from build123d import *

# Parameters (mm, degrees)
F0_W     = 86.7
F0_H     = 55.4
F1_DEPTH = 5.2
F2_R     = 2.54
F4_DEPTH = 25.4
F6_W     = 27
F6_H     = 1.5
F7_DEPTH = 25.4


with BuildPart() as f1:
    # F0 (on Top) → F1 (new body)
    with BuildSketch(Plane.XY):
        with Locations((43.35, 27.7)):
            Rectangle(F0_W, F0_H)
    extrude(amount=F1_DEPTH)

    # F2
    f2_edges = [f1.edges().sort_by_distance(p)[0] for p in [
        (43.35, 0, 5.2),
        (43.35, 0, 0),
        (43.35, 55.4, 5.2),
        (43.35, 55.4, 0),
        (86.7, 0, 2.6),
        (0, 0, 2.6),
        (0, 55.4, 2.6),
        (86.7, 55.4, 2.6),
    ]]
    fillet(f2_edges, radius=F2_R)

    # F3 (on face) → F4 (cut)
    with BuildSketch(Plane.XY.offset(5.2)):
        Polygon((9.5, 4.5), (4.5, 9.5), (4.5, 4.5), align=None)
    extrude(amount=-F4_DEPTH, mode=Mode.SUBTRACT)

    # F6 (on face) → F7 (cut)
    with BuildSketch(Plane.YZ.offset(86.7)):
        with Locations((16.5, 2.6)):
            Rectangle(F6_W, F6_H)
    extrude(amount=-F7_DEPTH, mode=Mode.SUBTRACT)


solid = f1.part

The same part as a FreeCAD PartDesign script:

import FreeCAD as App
import Part
import Sketcher
from FreeCAD import Vector


def edges_at(feature, points):
    """Names of the edges that pass closest to the given points."""
    edges = feature.Shape.Edges
    near = lambda p: min(range(len(edges)), key=lambda i: edges[i].distToShape(Part.Vertex(*p))[0])
    return sorted({f"Edge{near(p) + 1}" for p in points})


def add_polygon(sketch, points):
    """Adds a closed chain of lines whose ends are joined by coincident constraints."""
    first, n = sketch.GeometryCount, len(points)
    for a, b in zip(points, points[1:] + points[:1]):
        sketch.addGeometry(Part.LineSegment(App.Vector(*a, 0), App.Vector(*b, 0)), False)
    for i in range(n):
        sketch.addConstraint(Sketcher.Constraint("Coincident", first + i, 2, first + (i + 1) % n, 1))

doc = App.newDocument("Part")
params = doc.addObject("Spreadsheet::Sheet", "Params")
for row, (alias, value) in enumerate([
    ("sketch1_width", "86.7 mm"),
    ("sketch1_height", "55.4 mm"),
    ("pad1_length", "5.2 mm"),
    ("fillet_radius", "2.54 mm"),
    ("sketch2_width", "5 mm"),
    ("pocket1_length", "25.4 mm"),
    ("sketch3_width", "27 mm"),
    ("sketch3_height", "1.5 mm"),
    ("pocket2_length", "25.4 mm"),
], start=1):
    params.set(f"A{row}", alias)
    params.set(f"B{row}", "=" + value)
    params.setAlias(f"B{row}", alias)

body = doc.addObject("PartDesign::Body", "Body")

# Sketch on XY plane
sketch1 = doc.addObject("Sketcher::SketchObject", "Sketch")
body.addObject(sketch1)
sketch1.AttachmentSupport = (doc.XY_Plane, [""])
sketch1.MapMode = "FlatFace"
add_polygon(sketch1, [(0, 55.4), (0, 0), (86.7, 0), (86.7, 55.4)])  # lines 0-3
sketch1.addConstraint([
    Sketcher.Constraint("Vertical", 0),
    Sketcher.Constraint("Horizontal", 1),
    Sketcher.Constraint("Vertical", 2),
    Sketcher.Constraint("Horizontal", 3),
    Sketcher.Constraint("Coincident", 0, 2, -1, 1),
    Sketcher.Constraint("DistanceX", 1, 1, 1, 2, 86.7),
    Sketcher.Constraint("DistanceY", 0, 2, 0, 1, 55.4),
])
sketch1.setExpression("Constraints[9]", "Params.sketch1_width")
sketch1.setExpression("Constraints[10]", "Params.sketch1_height")
pad1 = doc.addObject("PartDesign::Pad", "Pad")
body.addObject(pad1)
pad1.Profile = sketch1
pad1.setExpression("Length", "Params.pad1_length")
doc.recompute()

fillet = doc.addObject("PartDesign::Fillet", "Fillet")
body.addObject(fillet)
fillet.Base = (pad1, edges_at(pad1, [
    (43.35, 0, 5.2),
    (43.35, 0, 0),
    (43.35, 55.4, 5.2),
    (43.35, 55.4, 0),
    (86.7, 0, 2.6),
    (0, 0, 2.6),
    (0, 55.4, 2.6),
    (86.7, 55.4, 2.6),
]))
fillet.setExpression("Radius", "Params.fillet_radius")

# Sketch on XY plane
sketch2 = doc.addObject("Sketcher::SketchObject", "Sketch001")
body.addObject(sketch2)
sketch2.AttachmentSupport = (doc.XY_Plane, [""])
sketch2.MapMode = "FlatFace"
sketch2.AttachmentOffset = App.Placement(Vector(0, 0, 5.2), App.Rotation())
add_polygon(sketch2, [(9.5, 4.5), (4.5, 9.5), (4.5, 4.5)])  # lines 0-2
sketch2.addConstraint([
    Sketcher.Constraint("Vertical", 1),
    Sketcher.Constraint("Horizontal", 2),
    Sketcher.Constraint("Equal", 2, 1),
    Sketcher.Constraint("DistanceX", 2, 1, 2, 2, 5.0),
    Sketcher.Constraint("DistanceX", -1, 1, 0, 2, 4.5),
    Sketcher.Constraint("DistanceY", -1, 1, 0, 2, 9.5),
])
sketch2.setExpression("Constraints[6]", "Params.sketch2_width")
pocket1 = doc.addObject("PartDesign::Pocket", "Pocket")
body.addObject(pocket1)
pocket1.Profile = sketch2
pocket1.setExpression("Length", "Params.pocket1_length")

# Sketch on YZ plane
sketch3 = doc.addObject("Sketcher::SketchObject", "Sketch002")
body.addObject(sketch3)
sketch3.AttachmentSupport = (doc.YZ_Plane, [""])
sketch3.MapMode = "FlatFace"
sketch3.AttachmentOffset = App.Placement(Vector(0, 0, 86.7), App.Rotation())
add_polygon(sketch3, [(3, 3.35), (3, 1.85), (30, 1.85), (30, 3.35)])  # lines 0-3
sketch3.addConstraint([
    Sketcher.Constraint("Vertical", 0),
    Sketcher.Constraint("Horizontal", 1),
    Sketcher.Constraint("Vertical", 2),
    Sketcher.Constraint("Horizontal", 3),
    Sketcher.Constraint("DistanceX", 1, 1, 1, 2, 27.0),
    Sketcher.Constraint("DistanceY", 0, 2, 0, 1, 1.5),
    Sketcher.Constraint("DistanceX", -1, 1, 0, 2, 3.0),
    Sketcher.Constraint("DistanceY", -1, 1, 0, 2, 1.85),
])
sketch3.setExpression("Constraints[8]", "Params.sketch3_width")
sketch3.setExpression("Constraints[9]", "Params.sketch3_height")
pocket2 = doc.addObject("PartDesign::Pocket", "Pocket001")
body.addObject(pocket2)
pocket2.Profile = sketch3
pocket2.setExpression("Length", "Params.pocket2_length")

doc.recompute()
